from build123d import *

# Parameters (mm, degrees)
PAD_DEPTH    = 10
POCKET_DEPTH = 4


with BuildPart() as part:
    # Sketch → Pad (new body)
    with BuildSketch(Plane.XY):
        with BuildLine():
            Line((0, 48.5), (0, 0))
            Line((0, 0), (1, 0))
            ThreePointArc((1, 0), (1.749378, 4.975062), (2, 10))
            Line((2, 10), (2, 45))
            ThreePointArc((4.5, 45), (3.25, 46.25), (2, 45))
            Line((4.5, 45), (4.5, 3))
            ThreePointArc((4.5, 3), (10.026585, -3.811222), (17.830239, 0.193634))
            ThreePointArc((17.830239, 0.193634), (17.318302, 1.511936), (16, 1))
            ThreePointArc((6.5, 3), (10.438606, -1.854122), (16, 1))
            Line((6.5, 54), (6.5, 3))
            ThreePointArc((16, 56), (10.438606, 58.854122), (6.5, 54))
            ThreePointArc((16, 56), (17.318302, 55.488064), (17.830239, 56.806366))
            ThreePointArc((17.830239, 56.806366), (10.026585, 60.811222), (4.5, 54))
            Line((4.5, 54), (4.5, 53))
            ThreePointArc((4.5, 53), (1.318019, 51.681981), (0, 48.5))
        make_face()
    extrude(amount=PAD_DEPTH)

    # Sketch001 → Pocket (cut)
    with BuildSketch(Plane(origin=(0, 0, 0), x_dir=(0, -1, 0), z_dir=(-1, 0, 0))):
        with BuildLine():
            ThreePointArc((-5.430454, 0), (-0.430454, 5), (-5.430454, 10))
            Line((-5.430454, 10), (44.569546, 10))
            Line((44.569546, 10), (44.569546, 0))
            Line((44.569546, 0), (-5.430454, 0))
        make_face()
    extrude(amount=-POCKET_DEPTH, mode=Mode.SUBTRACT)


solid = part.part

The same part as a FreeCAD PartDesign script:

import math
import FreeCAD as App
import Part
import Sketcher

V = App.Vector

doc = App.newDocument("Part")
body = doc.addObject("PartDesign::Body", "Body")

# Sketch on XY plane
sketch1 = doc.addObject("Sketcher::SketchObject", "Sketch")
body.addObject(sketch1)
sketch1.AttachmentSupport = (doc.XY_Plane, [""])
sketch1.MapMode = "FlatFace"
sketch1.addGeometry([
    Part.LineSegment(V(0, 48.5, 0), V(0, 0, 0)),  # 0
    Part.LineSegment(V(0, 0, 0), V(1, 0, 0)),  # 1
    Part.ArcOfCircle(Part.Circle(V(-48.500017, 10.000002, 0), V(0, 0, 1), 50.500017), math.radians(-11.421184), math.radians(-0.000002)),  # 2
    Part.LineSegment(V(2, 10, 0), V(2, 45, 0)),  # 3
    Part.ArcOfCircle(Part.Circle(V(3.25, 45, 0), V(0, 0, 1), 1.25), math.radians(0), math.radians(180)),  # 4
    Part.LineSegment(V(4.5, 45, 0), V(4.5, 3, 0)),  # 5
    Part.ArcOfCircle(Part.Circle(V(11.460526, 3, 0), V(0, 0, 1), 6.960526), math.radians(179.999996), math.radians(336.222688)),  # 6
    Part.ArcOfCircle(Part.Circle(V(16.915119, 0.596816, 0), V(0, 0, 1), 1), math.radians(-23.777274), math.radians(156.222651)),  # 7
    Part.ArcOfCircle(Part.Circle(V(11.460526, 3, 0), V(0, 0, 1), 4.960526), math.radians(180), math.radians(336.222684)),  # 8
    Part.LineSegment(V(6.5, 3, 0), V(6.5, 54, 0)),  # 9
    Part.ArcOfCircle(Part.Circle(V(11.460526, 54, 0), V(0, 0, 1), 4.960526), math.radians(23.777316), math.radians(180)),  # 10
    Part.ArcOfCircle(Part.Circle(V(16.915119, 56.403184, 0), V(0, 0, 1), 1), math.radians(-156.222651), math.radians(23.777274)),  # 11
    Part.ArcOfCircle(Part.Circle(V(11.460526, 54, 0), V(0, 0, 1), 6.960526), math.radians(23.777312), math.radians(180.000004)),  # 12
    Part.LineSegment(V(4.5, 54, 0), V(4.5, 53, 0)),  # 13
    Part.ArcOfCircle(Part.Circle(V(4.499998, 48.500002, 0), V(0, 0, 1), 4.499998), math.radians(89.999979), math.radians(180.000021)),  # 14
], False)
sketch1.addConstraint([
    Sketcher.Constraint("Coincident", 0, 2, 1, 1),
    Sketcher.Constraint("Coincident", 1, 2, 2, 1),
    Sketcher.Constraint("Coincident", 2, 2, 3, 1),
    Sketcher.Constraint("Coincident", 3, 2, 4, 2),
    Sketcher.Constraint("Coincident", 4, 1, 5, 1),
    Sketcher.Constraint("Coincident", 5, 2, 6, 1),
    Sketcher.Constraint("Coincident", 6, 2, 7, 1),
    Sketcher.Constraint("Coincident", 7, 2, 8, 2),
    Sketcher.Constraint("Coincident", 8, 1, 9, 1),
    Sketcher.Constraint("Coincident", 9, 2, 10, 2),
    Sketcher.Constraint("Coincident", 10, 1, 11, 1),
    Sketcher.Constraint("Coincident", 11, 2, 12, 1),
    Sketcher.Constraint("Coincident", 12, 2, 13, 1),
    Sketcher.Constraint("Coincident", 13, 2, 14, 1),
    Sketcher.Constraint("Coincident", 14, 2, 0, 1),
    Sketcher.Constraint("Vertical", 0),
    Sketcher.Constraint("Horizontal", 1),
    Sketcher.Constraint("Vertical", 3),
    Sketcher.Constraint("Vertical", 5),
    Sketcher.Constraint("Vertical", 9),
    Sketcher.Constraint("Vertical", 13),
    Sketcher.Constraint("Coincident", 0, 2, -1, 1),
    Sketcher.Constraint("Coincident", 8, 3, 6, 3),
    Sketcher.Constraint("Coincident", 12, 3, 10, 3),
    Sketcher.Constraint("Radius", 7, 1.0),
    Sketcher.Constraint("Radius", 11, 1.0),
    Sketcher.Constraint("Radius", 14, 4.499998),
    Sketcher.Constraint("DistanceX", 1, 1, 1, 2, 1.0),
    Sketcher.Constraint("DistanceY", 3, 1, 3, 2, 35.0),
    Sketcher.Constraint("DistanceY", 5, 2, 5, 1, 42.0),
    Sketcher.Constraint("DistanceY", 9, 1, 9, 2, 51.0),
    Sketcher.Constraint("DistanceY", 13, 2, 13, 1, 1.0),
    Sketcher.Constraint("Radius", 4, 1.25),
    Sketcher.Constraint("DistanceY", 0, 2, 0, 1, 48.5),
    Sketcher.Constraint("DistanceY", -1, 1, 2, 3, 10.000002),
    Sketcher.Constraint("DistanceY", -1, 1, 4, 3, 45.0),
    Sketcher.Constraint("DistanceY", -1, 1, 6, 3, 3.0),
    Sketcher.Constraint("DistanceY", -1, 1, 10, 3, 54.0),
    Sketcher.Constraint("DistanceX", -1, 1, 2, 2, 2.0),
    Sketcher.Constraint("DistanceY", -1, 1, 2, 2, 10.0),
    Sketcher.Constraint("DistanceY", -1, 1, 4, 1, 45.0),
    Sketcher.Constraint("DistanceX", -1, 1, 7, 2, 16.0),
    Sketcher.Constraint("DistanceY", -1, 1, 7, 2, 1.0),
    Sketcher.Constraint("DistanceY", -1, 1, 8, 1, 3.0),
    Sketcher.Constraint("DistanceX", -1, 1, 10, 1, 16.0),
    Sketcher.Constraint("DistanceY", -1, 1, 10, 1, 56.0),
    Sketcher.Constraint("DistanceY", -1, 1, 12, 2, 54.0),
    Sketcher.Constraint("DistanceX", -1, 1, 7, 3, 16.915119),
    Sketcher.Constraint("DistanceX", -1, 1, 11, 3, 16.915119),
    Sketcher.Constraint("DistanceX", -1, 1, 6, 2, 17.830239),
    Sketcher.Constraint("DistanceX", -1, 1, 11, 2, 17.830239),
])
pad1 = doc.addObject("PartDesign::Pad", "Pad")
body.addObject(pad1)
pad1.Profile = sketch1
pad1.Length = 10

# Sketch on YZ plane
sketch2 = doc.addObject("Sketcher::SketchObject", "Sketch001")
body.addObject(sketch2)
sketch2.AttachmentSupport = (doc.YZ_Plane, [""])
sketch2.MapMode = "FlatFace"
sketch2.addGeometry([
    Part.ArcOfCircle(Part.Circle(V(5, 5, 0), V(0, 0, 1), 5), math.radians(90), math.radians(270)),
    Part.LineSegment(V(5, 0, 0), V(-45, 0, 0)),
    Part.LineSegment(V(-45, 0, 0), V(-45, 10, 0)),
    Part.LineSegment(V(-45, 10, 0), V(5, 10, 0)),
], False)
sketch2.addConstraint([
    Sketcher.Constraint("Tangent", 0, 2, 1, 1),
    Sketcher.Constraint("Coincident", 1, 2, 2, 1),
    Sketcher.Constraint("Coincident", 2, 2, 3, 1),
    Sketcher.Constraint("Tangent", 3, 2, 0, 1),
    Sketcher.Constraint("Horizontal", 1),
    Sketcher.Constraint("Vertical", 2),
    Sketcher.Constraint("Horizontal", 3),
    Sketcher.Constraint("PointOnObject", 0, 2, -1),
    Sketcher.Constraint("Radius", 0, 5.0),
    Sketcher.Constraint("DistanceX", 1, 2, 1, 1, 50.0),
    Sketcher.Constraint("DistanceX", -1, 1, 0, 3, 5.430454),
])
pocket1 = doc.addObject("PartDesign::Pocket", "Pocket")
body.addObject(pocket1)
pocket1.Profile = sketch2
pocket1.Length = 4
pocket1.Reversed = True

doc.recompute()
